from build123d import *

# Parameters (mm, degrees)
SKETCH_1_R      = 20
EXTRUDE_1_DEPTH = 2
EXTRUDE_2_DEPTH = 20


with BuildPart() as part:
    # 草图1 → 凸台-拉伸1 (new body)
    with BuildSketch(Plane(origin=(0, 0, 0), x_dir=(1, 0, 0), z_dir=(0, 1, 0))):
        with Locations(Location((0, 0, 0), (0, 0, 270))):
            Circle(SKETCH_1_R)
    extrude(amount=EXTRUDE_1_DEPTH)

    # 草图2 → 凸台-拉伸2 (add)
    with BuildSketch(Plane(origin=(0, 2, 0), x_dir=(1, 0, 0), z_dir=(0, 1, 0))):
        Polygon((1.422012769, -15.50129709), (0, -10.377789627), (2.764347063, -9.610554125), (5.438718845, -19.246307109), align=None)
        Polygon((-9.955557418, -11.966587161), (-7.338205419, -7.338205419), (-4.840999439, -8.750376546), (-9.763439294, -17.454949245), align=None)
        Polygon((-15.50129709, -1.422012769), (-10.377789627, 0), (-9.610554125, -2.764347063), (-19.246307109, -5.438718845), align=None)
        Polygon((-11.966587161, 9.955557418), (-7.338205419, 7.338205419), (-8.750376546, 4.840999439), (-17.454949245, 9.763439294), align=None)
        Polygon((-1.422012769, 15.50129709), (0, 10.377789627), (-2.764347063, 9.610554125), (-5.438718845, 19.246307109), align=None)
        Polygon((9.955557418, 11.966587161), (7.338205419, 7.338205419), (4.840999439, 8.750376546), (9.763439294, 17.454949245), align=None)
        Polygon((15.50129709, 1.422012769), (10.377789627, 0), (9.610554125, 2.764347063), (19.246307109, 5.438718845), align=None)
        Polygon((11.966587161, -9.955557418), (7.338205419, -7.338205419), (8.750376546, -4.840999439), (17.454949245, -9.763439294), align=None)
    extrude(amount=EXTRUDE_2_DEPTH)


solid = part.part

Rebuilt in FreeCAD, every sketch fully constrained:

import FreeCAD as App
import Part
import Sketcher

V = App.Vector
Q = App.Units.Quantity

doc = App.newDocument("Part")
body = doc.addObject("PartDesign::Body", "Body")

sketch1 = body.newObject("Sketcher::SketchObject", "Sketch")
sketch1.AttachmentSupport = (doc.getObject("XZ_Plane"), [""])
sketch1.MapMode = "FlatFace"
sketch1.addGeometry(Part.Circle(V(0, 0, 0), V(0, 0, 1), 20), False)
sketch1.addConstraint([
    Sketcher.Constraint("Coincident", 0, 3, -1, 1),
    Sketcher.Constraint("Diameter", 0, Q("40 mm")),
])
pad1 = body.newObject("PartDesign::Pad", "Pad")
pad1.Profile = sketch1
pad1.Length = 2
pad1.Reversed = True

sketch2 = body.newObject("Sketcher::SketchObject", "Sketch001")
sketch2.AttachmentSupport = (doc.getObject("XZ_Plane"), [""])
sketch2.MapMode = "FlatFace"
sketch2.AttachmentOffset = App.Placement(V(0, 0, -2), App.Rotation())
sketch2.addGeometry([
    Part.LineSegment(V(0, 10.4, 0), V(1.4, 15.5, 0)),
    Part.LineSegment(V(1.4, 15.5, 0), V(5.4, 19.2, 0)),
    Part.LineSegment(V(5.4, 19.2, 0), V(2.8, 9.6, 0)),
    Part.LineSegment(V(2.8, 9.6, 0), V(0, 10.4, 0)),
    Part.LineSegment(V(-7.3, 7.3, 0), V(-10, 12, 0)),
    Part.LineSegment(V(-10, 12, 0), V(-9.8, 17.5, 0)),
    Part.LineSegment(V(-9.8, 17.5, 0), V(-4.8, 8.8, 0)),
    Part.LineSegment(V(-4.8, 8.8, 0), V(-7.3, 7.3, 0)),
    Part.LineSegment(V(-10.4, 0, 0), V(-15.5, 1.4, 0)),
    Part.LineSegment(V(-15.5, 1.4, 0), V(-19.2, 5.4, 0)),
    Part.LineSegment(V(-19.2, 5.4, 0), V(-9.6, 2.8, 0)),
    Part.LineSegment(V(-9.6, 2.8, 0), V(-10.4, 0, 0)),
    Part.LineSegment(V(-7.3, -7.3, 0), V(-12, -10, 0)),
    Part.LineSegment(V(-12, -10, 0), V(-17.5, -9.8, 0)),
    Part.LineSegment(V(-17.5, -9.8, 0), V(-8.8, -4.8, 0)),
    Part.LineSegment(V(-8.8, -4.8, 0), V(-7.3, -7.3, 0)),
    Part.LineSegment(V(0, -10.4, 0), V(-1.4, -15.5, 0)),
    Part.LineSegment(V(-1.4, -15.5, 0), V(-5.4, -19.2, 0)),
    Part.LineSegment(V(-5.4, -19.2, 0), V(-2.8, -9.6, 0)),
    Part.LineSegment(V(-2.8, -9.6, 0), V(0, -10.4, 0)),
    Part.LineSegment(V(7.3, -7.3, 0), V(10, -12, 0)),
    Part.LineSegment(V(10, -12, 0), V(9.8, -17.5, 0)),
    Part.LineSegment(V(9.8, -17.5, 0), V(4.8, -8.8, 0)),
    Part.LineSegment(V(4.8, -8.8, 0), V(7.3, -7.3, 0)),
    Part.LineSegment(V(10.4, 0, 0), V(15.5, -1.4, 0)),
    Part.LineSegment(V(15.5, -1.4, 0), V(19.2, -5.4, 0)),
    Part.LineSegment(V(19.2, -5.4, 0), V(9.6, -2.8, 0)),
    Part.LineSegment(V(9.6, -2.8, 0), V(10.4, 0, 0)),
    Part.LineSegment(V(7.3, 7.3, 0), V(12, 10, 0)),
    Part.LineSegment(V(12, 10, 0), V(17.5, 9.8, 0)),
    Part.LineSegment(V(17.5, 9.8, 0), V(8.8, 4.8, 0)),
    Part.LineSegment(V(8.8, 4.8, 0), V(7.3, 7.3, 0)),
], False)
sketch2.addConstraint([
    Sketcher.Constraint("Coincident", 0, 2, 1, 1),
    Sketcher.Constraint("Coincident", 1, 2, 2, 1),
    Sketcher.Constraint("Coincident", 2, 2, 3, 1),
    Sketcher.Constraint("Coincident", 3, 2, 0, 1),
    Sketcher.Constraint("Coincident", 4, 2, 5, 1),
    Sketcher.Constraint("Coincident", 5, 2, 6, 1),
    Sketcher.Constraint("Coincident", 6, 2, 7, 1),
    Sketcher.Constraint("Coincident", 7, 2, 4, 1),
    Sketcher.Constraint("Coincident", 8, 2, 9, 1),
    Sketcher.Constraint("Coincident", 9, 2, 10, 1),
    Sketcher.Constraint("Coincident", 10, 2, 11, 1),
    Sketcher.Constraint("Coincident", 11, 2, 8, 1),
    Sketcher.Constraint("Coincident", 12, 2, 13, 1),
    Sketcher.Constraint("Coincident", 13, 2, 14, 1),
    Sketcher.Constraint("Coincident", 14, 2, 15, 1),
    Sketcher.Constraint("Coincident", 15, 2, 12, 1),
    Sketcher.Constraint("Coincident", 16, 2, 17, 1),
    Sketcher.Constraint("Coincident", 17, 2, 18, 1),
    Sketcher.Constraint("Coincident", 18, 2, 19, 1),
    Sketcher.Constraint("Coincident", 19, 2, 16, 1),
    Sketcher.Constraint("Coincident", 20, 2, 21, 1),
    Sketcher.Constraint("Coincident", 21, 2, 22, 1),
    Sketcher.Constraint("Coincident", 22, 2, 23, 1),
    Sketcher.Constraint("Coincident", 23, 2, 20, 1),
    Sketcher.Constraint("Coincident", 24, 2, 25, 1),
    Sketcher.Constraint("Coincident", 25, 2, 26, 1),
    Sketcher.Constraint("Coincident", 26, 2, 27, 1),
    Sketcher.Constraint("Coincident", 27, 2, 24, 1),
    Sketcher.Constraint("Coincident", 28, 2, 29, 1),
    Sketcher.Constraint("Coincident", 29, 2, 30, 1),
    Sketcher.Constraint("Coincident", 30, 2, 31, 1),
    Sketcher.Constraint("Coincident", 31, 2, 28, 1),
    Sketcher.Constraint("Symmetric", 0, 2, 16, 2, -1, 1),
    Sketcher.Constraint("Symmetric", 1, 2, 17, 2, -1, 1),
    Sketcher.Constraint("Symmetric", 2, 2, 18, 2, -1, 1),
    Sketcher.Constraint("Symmetric", 3, 2, 19, 2, -1, 1),
    Sketcher.Constraint("Symmetric", 4, 2, 20, 2, -1, 1),
    Sketcher.Constraint("Symmetric", 5, 2, 21, 2, -1, 1),
    Sketcher.Constraint("Symmetric", 6, 2, 22, 2, -1, 1),
    Sketcher.Constraint("Symmetric", 7, 2, 23, 2, -1, 1),
    Sketcher.Constraint("Symmetric", 8, 2, 24, 2, -1, 1),
    Sketcher.Constraint("Symmetric", 9, 2, 25, 2, -1, 1),
    Sketcher.Constraint("Symmetric", 10, 2, 26, 2, -1, 1),
    Sketcher.Constraint("Symmetric", 11, 2, 27, 2, -1, 1),
    Sketcher.Constraint("Symmetric", 12, 2, 28, 2, -1, 1),
    Sketcher.Constraint("Symmetric", 13, 2, 29, 2, -1, 1),
    Sketcher.Constraint("Symmetric", 14, 2, 30, 2, -1, 1),
    Sketcher.Constraint("Symmetric", 15, 2, 31, 2, -1, 1),
    Sketcher.Constraint("Symmetric", 15, 2, 23, 2, -2),
    Sketcher.Constraint("PointOnObject", 3, 2, -2),
    Sketcher.Constraint("PointOnObject", 11, 2, -1),
    Sketcher.Constraint("Parallel", 0, 2),
    Sketcher.Constraint("Perpendicular", 2, 3),
    Sketcher.Constraint("Parallel", 4, 6),
    Sketcher.Constraint("Perpendicular", 6, 7),
    Sketcher.Constraint("Parallel", 3, 8),
    Sketcher.Constraint("Perpendicular", 1, 9),
    Sketcher.Constraint("Parallel", 8, 10),
    Sketcher.Constraint("Perpendicular", 10, 11),
    Sketcher.Constraint("Parallel", 7, 12),
    Sketcher.Constraint("Perpendicular", 5, 13),
    Sketcher.Constraint("Parallel", 12, 14),
    Sketcher.Constraint("Perpendicular", 14, 15),
    Sketcher.Constraint("Equal", 0, 4),
    Sketcher.Constraint("Equal", 1, 5),
    Sketcher.Constraint("Equal", 2, 6),
    Sketcher.Constraint("Equal", 4, 8),
    Sketcher.Constraint("Equal", 5, 9),
    Sketcher.Constraint("Equal", 8, 12),
    Sketcher.Constraint("Equal", 9, 13),
    Sketcher.Constraint("Distance", 2, Q("10 mm")),
    Sketcher.Constraint("DistanceX", 6, 2, -1, 1, Q("4.840999 mm")),
    Sketcher.Constraint("DistanceY", 14, 2, -1, 1, Q("4.840999 mm")),
    Sketcher.Constraint("DistanceX", 9, 2, 7, 2, Q("11.908102 mm")),
    Sketcher.Constraint("DistanceY", 17, 2, 15, 2, Q("11.908102 mm")),
    Sketcher.Constraint("DistanceX", -1, 1, 1, 2, Q("5.438719 mm")),
    Sketcher.Constraint("DistanceY", -1, 1, 3, 2, Q("10.37779 mm")),
    Sketcher.Constraint("DistanceX", 5, 2, -1, 1, Q("9.763439 mm")),
    Sketcher.Constraint("DistanceY", 0, 2, 1, 2, Q("3.74501 mm")),
])
pad2 = body.newObject("PartDesign::Pad", "Pad001")
pad2.Profile = sketch2
pad2.Length = 20
pad2.Reversed = True

doc.recompute()
